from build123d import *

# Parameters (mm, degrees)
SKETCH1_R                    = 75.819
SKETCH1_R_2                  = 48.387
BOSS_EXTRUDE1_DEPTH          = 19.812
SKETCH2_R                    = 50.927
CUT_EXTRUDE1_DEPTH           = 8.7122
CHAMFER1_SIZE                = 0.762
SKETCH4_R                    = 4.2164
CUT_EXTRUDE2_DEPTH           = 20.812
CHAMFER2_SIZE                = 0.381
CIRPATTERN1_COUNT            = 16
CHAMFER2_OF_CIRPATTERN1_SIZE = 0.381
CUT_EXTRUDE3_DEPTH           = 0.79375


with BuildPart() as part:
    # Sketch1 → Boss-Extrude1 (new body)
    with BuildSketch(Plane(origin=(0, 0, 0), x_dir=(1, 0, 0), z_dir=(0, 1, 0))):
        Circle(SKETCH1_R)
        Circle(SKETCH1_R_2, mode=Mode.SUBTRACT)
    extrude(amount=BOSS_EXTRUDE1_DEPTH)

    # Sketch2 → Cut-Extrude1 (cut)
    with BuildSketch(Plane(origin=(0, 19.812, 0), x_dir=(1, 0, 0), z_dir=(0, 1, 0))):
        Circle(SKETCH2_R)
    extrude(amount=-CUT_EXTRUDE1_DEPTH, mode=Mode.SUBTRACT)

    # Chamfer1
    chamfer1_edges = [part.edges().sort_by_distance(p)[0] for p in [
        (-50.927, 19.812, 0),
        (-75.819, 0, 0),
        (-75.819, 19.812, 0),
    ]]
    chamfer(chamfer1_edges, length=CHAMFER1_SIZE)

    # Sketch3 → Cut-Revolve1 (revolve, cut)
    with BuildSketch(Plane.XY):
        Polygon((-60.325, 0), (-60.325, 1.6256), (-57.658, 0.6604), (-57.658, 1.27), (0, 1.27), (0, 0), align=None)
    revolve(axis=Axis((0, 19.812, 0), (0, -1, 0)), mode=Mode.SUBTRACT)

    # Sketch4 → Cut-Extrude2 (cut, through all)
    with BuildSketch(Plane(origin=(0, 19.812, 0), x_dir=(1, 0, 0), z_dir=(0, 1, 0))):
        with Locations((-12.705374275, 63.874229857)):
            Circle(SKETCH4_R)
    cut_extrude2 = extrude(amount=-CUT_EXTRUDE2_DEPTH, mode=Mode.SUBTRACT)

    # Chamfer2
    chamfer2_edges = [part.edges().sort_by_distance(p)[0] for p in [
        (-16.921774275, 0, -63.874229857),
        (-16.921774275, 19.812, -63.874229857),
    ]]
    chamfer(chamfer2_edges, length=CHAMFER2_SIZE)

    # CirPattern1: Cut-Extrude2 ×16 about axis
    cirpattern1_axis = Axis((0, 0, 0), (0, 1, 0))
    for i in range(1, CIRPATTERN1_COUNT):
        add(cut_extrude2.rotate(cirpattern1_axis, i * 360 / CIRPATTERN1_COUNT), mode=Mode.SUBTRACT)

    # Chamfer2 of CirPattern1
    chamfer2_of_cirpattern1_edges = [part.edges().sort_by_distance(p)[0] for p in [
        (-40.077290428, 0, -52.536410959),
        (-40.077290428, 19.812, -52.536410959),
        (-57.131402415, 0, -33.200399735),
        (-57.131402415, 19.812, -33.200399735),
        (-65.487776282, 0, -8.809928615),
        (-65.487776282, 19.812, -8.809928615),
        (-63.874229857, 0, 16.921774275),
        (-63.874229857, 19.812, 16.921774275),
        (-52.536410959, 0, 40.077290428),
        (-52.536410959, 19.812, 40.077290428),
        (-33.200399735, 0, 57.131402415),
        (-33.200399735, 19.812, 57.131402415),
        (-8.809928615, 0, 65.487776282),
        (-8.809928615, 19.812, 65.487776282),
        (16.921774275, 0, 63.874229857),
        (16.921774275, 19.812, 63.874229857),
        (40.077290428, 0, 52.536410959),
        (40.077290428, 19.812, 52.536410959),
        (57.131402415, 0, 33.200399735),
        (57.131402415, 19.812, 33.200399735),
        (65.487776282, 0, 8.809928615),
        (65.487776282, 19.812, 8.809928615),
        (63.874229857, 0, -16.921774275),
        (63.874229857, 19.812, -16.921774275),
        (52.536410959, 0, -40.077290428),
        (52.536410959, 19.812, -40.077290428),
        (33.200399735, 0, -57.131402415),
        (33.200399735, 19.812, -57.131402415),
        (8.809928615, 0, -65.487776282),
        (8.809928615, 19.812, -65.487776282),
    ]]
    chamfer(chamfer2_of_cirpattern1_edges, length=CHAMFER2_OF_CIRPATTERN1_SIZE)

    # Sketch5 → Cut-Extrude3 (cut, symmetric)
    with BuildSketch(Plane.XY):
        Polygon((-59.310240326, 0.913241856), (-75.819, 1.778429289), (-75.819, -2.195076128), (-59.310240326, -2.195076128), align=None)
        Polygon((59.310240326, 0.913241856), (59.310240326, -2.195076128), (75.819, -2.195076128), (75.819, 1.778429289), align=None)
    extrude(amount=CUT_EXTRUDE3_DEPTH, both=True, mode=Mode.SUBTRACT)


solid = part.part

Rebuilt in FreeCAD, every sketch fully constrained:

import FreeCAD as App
import Part
import Sketcher
from FreeCAD import Vector
Q = App.Units.Quantity


def edges_at(feature, points):
    """Names of the edges that pass closest to the given points."""
    edges = feature.Shape.Edges
    near = lambda p: min(range(len(edges)), key=lambda i: edges[i].distToShape(Part.Vertex(*p))[0])
    return sorted({f"Edge{near(p) + 1}" for p in points})

doc = App.newDocument("Part")
body = doc.addObject("PartDesign::Body", "Body")

# Sketch on XZ plane
sketch1 = body.newObject("Sketcher::SketchObject", "Sketch")
sketch1.AttachmentSupport = (doc.getObject("XZ_Plane"), [""])
sketch1.MapMode = "FlatFace"
sketch1.addGeometry([
    Part.Circle(Vector(0, 0, 0), Vector(0, 0, 1), 75.819),
    Part.Circle(Vector(0, 0, 0), Vector(0, 0, 1), 48.387),
], False)
sketch1.addConstraint([
    Sketcher.Constraint("Coincident", 0, 3, -1, 1),
    Sketcher.Constraint("Coincident", 1, 3, -1, 1),
    Sketcher.Constraint("Diameter", 0, Q("5.97 in")),
    Sketcher.Constraint("Diameter", 1, Q("3.81 in")),
])
pad1 = body.newObject("PartDesign::Pad", "Pad")
pad1.Profile = sketch1
pad1.Length = Q("0.78 in")
pad1.Reversed = True

# Sketch on XZ plane
sketch2 = body.newObject("Sketcher::SketchObject", "Sketch001")
sketch2.AttachmentSupport = (doc.getObject("XZ_Plane"), [""])
sketch2.MapMode = "FlatFace"
sketch2.AttachmentOffset = App.Placement(Vector(0, 0, -0.78 * 25.4), App.Rotation())
sketch2.addGeometry(Part.Circle(Vector(0, 0, 0), Vector(0, 0, 1), 50.927), False)
sketch2.addConstraint([
    Sketcher.Constraint("Coincident", 0, 3, -1, 1),
    Sketcher.Constraint("Diameter", 0, Q("4.01 in")),
])
pocket1 = body.newObject("PartDesign::Pocket", "Pocket")
pocket1.Profile = sketch2
pocket1.Length = Q("0.343 in")
pocket1.Reversed = True
doc.recompute()

chamfer = body.newObject("PartDesign::Chamfer", "Chamfer")
chamfer.Base = (pocket1, edges_at(pocket1, [(-50.927, 19.812, 0), (-75.819, 0, 0), (-75.819, 19.812, 0)]))
chamfer.Size = Q("0.03 in")

# Sketch on XY plane
sketch3 = body.newObject("Sketcher::SketchObject", "Sketch002")
sketch3.AttachmentSupport = (doc.getObject("XY_Plane"), [""])
sketch3.MapMode = "FlatFace"
sketch3.addGeometry([
    Part.LineSegment(Vector(-60.325, 1.6256, 0), Vector(-60.325, 0, 0)),  # 0
    Part.LineSegment(Vector(-60.325, 0, 0), Vector(0, 0, 0)),  # 1
    Part.LineSegment(Vector(0, 0, 0), Vector(0, 1.27, 0)),  # 2
    Part.LineSegment(Vector(0, 1.27, 0), Vector(-57.658, 1.27, 0)),  # 3
    Part.LineSegment(Vector(-57.658, 1.27, 0), Vector(-57.658, 0.6604, 0)),  # 4
    Part.LineSegment(Vector(-57.658, 0.6604, 0), Vector(-60.325, 1.6256, 0)),  # 5
], False)
sketch3.addConstraint([
    Sketcher.Constraint("Coincident", 0, 2, 1, 1),
    Sketcher.Constraint("Coincident", 1, 2, 2, 1),
    Sketcher.Constraint("Coincident", 2, 2, 3, 1),
    Sketcher.Constraint("Coincident", 3, 2, 4, 1),
    Sketcher.Constraint("Coincident", 4, 2, 5, 1),
    Sketcher.Constraint("Coincident", 5, 2, 0, 1),
    Sketcher.Constraint("Vertical", 0),
    Sketcher.Constraint("Horizontal", 1),
    Sketcher.Constraint("Vertical", 2),
    Sketcher.Constraint("Horizontal", 3),
    Sketcher.Constraint("Vertical", 4),
    Sketcher.Constraint("Coincident", 1, 2, -1, 1),
    Sketcher.Constraint("DistanceX", 3, 2, 3, 1, Q("2.27 in")),
    Sketcher.Constraint("DistanceY", 2, 1, 2, 2, Q("0.05 in")),
    Sketcher.Constraint("DistanceX", 1, 1, 1, 2, Q("2.375 in")),
    Sketcher.Constraint("DistanceY", 0, 2, 0, 1, Q("0.064 in")),
    Sketcher.Constraint("DistanceY", 4, 2, 4, 1, Q("0.024 in")),
])
groove = body.newObject("PartDesign::Groove", "Groove")
groove.Profile = sketch3
groove.ReferenceAxis = (sketch3, ["V_Axis"])
groove.Angle = 360

# Sketch on XZ plane
sketch4 = body.newObject("Sketcher::SketchObject", "Sketch003")
sketch4.AttachmentSupport = (doc.getObject("XZ_Plane"), [""])
sketch4.MapMode = "FlatFace"
sketch4.AttachmentOffset = App.Placement(Vector(0, 0, -0.78 * 25.4), App.Rotation())
sketch4.addGeometry(Part.Circle(Vector(-12.705374, -63.87423, 0), Vector(0, 0, 1), 4.2164), False)
sketch4.addConstraint([
    Sketcher.Constraint("Diameter", 0, Q("0.332 in")),
    Sketcher.Constraint("DistanceY", 0, 3, -1, 1, 63.87423),
    Sketcher.Constraint("DistanceX", 0, 3, -1, 1, 12.705374),
])
pocket2 = body.newObject("PartDesign::Pocket", "Pocket001")
pocket2.Profile = sketch4
pocket2.Type = "ThroughAll"
pocket2.Reversed = True
doc.recompute()

chamfer2 = body.newObject("PartDesign::Chamfer", "Chamfer001")
chamfer2.Base = (pocket2, edges_at(pocket2, [(-16.922, 0, -63.874), (-16.922, 19.812, -63.874)]))
chamfer2.Size = Q("0.015 in")
doc.recompute()

polarpattern = body.newObject("PartDesign::PolarPattern", "PolarPattern")
polarpattern.Originals = [pocket2]
polarpattern.Axis = (doc.getObject("Y_Axis"), [""])
polarpattern.Angle = 360
polarpattern.Occurrences = 16
body.Tip = polarpattern
doc.recompute()

chamfer3 = body.newObject("PartDesign::Chamfer", "Chamfer002")
chamfer3.Base = (polarpattern, edges_at(polarpattern, [
    (-40.077, 0, -52.536),
    (-40.077, 19.812, -52.536),
    (-57.131, 0, -33.2),
    (-57.131, 19.812, -33.2),
    (-65.488, 0, -8.81),
    (-65.488, 19.812, -8.81),
    (-63.874, 0, 16.922),
    (-63.874, 19.812, 16.922),
    (-52.536, 0, 40.077),
    (-52.536, 19.812, 40.077),
    (-33.2, 0, 57.131),
    (-33.2, 19.812, 57.131),
    (-8.81, 0, 65.488),
    (-8.81, 19.812, 65.488),
    (16.922, 0, 63.874),
    (16.922, 19.812, 63.874),
    (40.077, 0, 52.536),
    (40.077, 19.812, 52.536),
    (57.131, 0, 33.2),
    (57.131, 19.812, 33.2),
    (65.488, 0, 8.81),
    (65.488, 19.812, 8.81),
    (63.874, 0, -16.922),
    (63.874, 19.812, -16.922),
    (52.536, 0, -40.077),
    (52.536, 19.812, -40.077),
    (33.2, 0, -57.131),
    (33.2, 19.812, -57.131),
    (8.81, 0, -65.488),
    (8.81, 19.812, -65.488),
]))
chamfer3.Size = Q("0.015 in")

# Sketch on XY plane
sketch5 = body.newObject("Sketcher::SketchObject", "Sketch004")
sketch5.AttachmentSupport = (doc.getObject("XY_Plane"), [""])
sketch5.MapMode = "FlatFace"
sketch5.addGeometry([
    Part.LineSegment(Vector(-59.31024, 0.913242, 0), Vector(-75.819, 1.778429, 0)),  # 0
    Part.LineSegment(Vector(-75.819, 1.778429, 0), Vector(-75.819, -2.195076, 0)),  # 1
    Part.LineSegment(Vector(-75.819, -2.195076, 0), Vector(-59.31024, -2.195076, 0)),  # 2
    Part.LineSegment(Vector(-59.31024, -2.195076, 0), Vector(-59.31024, 0.913242, 0)),  # 3
    Part.LineSegment(Vector(59.31024, 0.913242, 0), Vector(59.31024, -2.195076, 0)),  # 4
    Part.LineSegment(Vector(59.31024, -2.195076, 0), Vector(75.819, -2.195076, 0)),  # 5
    Part.LineSegment(Vector(75.819, -2.195076, 0), Vector(75.819, 1.778429, 0)),  # 6
    Part.LineSegment(Vector(75.819, 1.778429, 0), Vector(59.31024, 0.913242, 0)),  # 7
], False)
sketch5.addConstraint([
    Sketcher.Constraint("Coincident", 0, 2, 1, 1),
    Sketcher.Constraint("Coincident", 1, 2, 2, 1),
    Sketcher.Constraint("Coincident", 2, 2, 3, 1),
    Sketcher.Constraint("Coincident", 3, 2, 0, 1),
    Sketcher.Constraint("Coincident", 4, 2, 5, 1),
    Sketcher.Constraint("Coincident", 5, 2, 6, 1),
    Sketcher.Constraint("Coincident", 6, 2, 7, 1),
    Sketcher.Constraint("Coincident", 7, 2, 4, 1),
    Sketcher.Constraint("Vertical", 1),
    Sketcher.Constraint("Horizontal", 2),
    Sketcher.Constraint("Vertical", 3),
    Sketcher.Constraint("Vertical", 4),
    Sketcher.Constraint("Horizontal", 5),
    Sketcher.Constraint("Vertical", 6),
    Sketcher.Constraint("Symmetric", 2, 2, 4, 2, -2),
    Sketcher.Constraint("Symmetric", 0, 2, 6, 2, -2),
    Sketcher.Constraint("Horizontal", 3, 2, 7, 2),
    Sketcher.Constraint("Angle", 0, Q("177 deg")),
    Sketcher.Constraint("DistanceX", 1, 2, 5, 2, Q("5.97 in")),
    Sketcher.Constraint("DistanceX", 2, 1, 2, 2, 16.50876),
    Sketcher.Constraint("DistanceY", 1, 2, 1, 1, 3.973505),
    Sketcher.Constraint("DistanceY", -1, 1, 0, 2, 1.778429),
])
pocket3 = body.newObject("PartDesign::Pocket", "Pocket002")
pocket3.Profile = sketch5
pocket3.Length = Q("0.0625 in")
pocket3.Midplane = True

doc.recompute()
